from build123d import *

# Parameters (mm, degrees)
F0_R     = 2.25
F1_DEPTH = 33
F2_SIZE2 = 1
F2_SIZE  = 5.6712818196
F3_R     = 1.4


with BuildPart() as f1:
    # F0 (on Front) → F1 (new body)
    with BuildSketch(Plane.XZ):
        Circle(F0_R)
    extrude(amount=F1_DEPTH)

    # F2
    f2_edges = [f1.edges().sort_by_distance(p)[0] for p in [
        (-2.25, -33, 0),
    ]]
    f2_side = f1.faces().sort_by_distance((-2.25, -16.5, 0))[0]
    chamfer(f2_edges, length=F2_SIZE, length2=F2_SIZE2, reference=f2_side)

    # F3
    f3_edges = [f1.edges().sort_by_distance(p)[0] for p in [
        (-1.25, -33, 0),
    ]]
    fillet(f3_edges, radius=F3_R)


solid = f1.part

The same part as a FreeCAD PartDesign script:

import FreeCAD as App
import Part
import Sketcher
from FreeCAD import Vector


def edges_at(feature, points):
    """Names of the edges that pass closest to the given points."""
    edges = feature.Shape.Edges
    near = lambda p: min(range(len(edges)), key=lambda i: edges[i].distToShape(Part.Vertex(*p))[0])
    return sorted({f"Edge{near(p) + 1}" for p in points})

doc = App.newDocument("Part")
params = doc.addObject("Spreadsheet::Sheet", "Params")
for row, (alias, value) in enumerate([
    ("sketch1_diameter", "4.5 mm"),
    ("pad1_length", "33 mm"),
    ("chamfer_size", "5.671282 mm"),
    ("chamfer_size2", "1 mm"),
    ("fillet_radius", "1.4 mm"),
], start=1):
    params.set(f"A{row}", alias)
    params.set(f"B{row}", "=" + value)
    params.setAlias(f"B{row}", alias)

body = doc.addObject("PartDesign::Body", "Body")

sketch1 = body.newObject("Sketcher::SketchObject", "Sketch")
sketch1.AttachmentSupport = (doc.getObject("XZ_Plane"), [""])
sketch1.MapMode = "FlatFace"
sketch1.addGeometry(Part.Circle(Vector(0, 0, 0), Vector(0, 0, 1), 2.2), False)
sketch1.addConstraint([
    Sketcher.Constraint("Coincident", 0, 3, -1, 1),
    Sketcher.Constraint("Diameter", 0, 4.5),
])
sketch1.setExpression("Constraints[1]", "Params.sketch1_diameter")
pad1 = body.newObject("PartDesign::Pad", "Pad")
pad1.Profile = sketch1
pad1.setExpression("Length", "Params.pad1_length")
doc.recompute()

chamfer = body.newObject("PartDesign::Chamfer", "Chamfer")
chamfer.Base = (pad1, edges_at(pad1, [(-2.25, -33, 0)]))
chamfer.ChamferType = "Two distances"
chamfer.setExpression("Size", "Params.chamfer_size")
chamfer.setExpression("Size2", "Params.chamfer_size2")
doc.recompute()

fillet = body.newObject("PartDesign::Fillet", "Fillet")
fillet.Base = (chamfer, edges_at(chamfer, [(-1.25, -33, 0)]))
fillet.setExpression("Radius", "Params.fillet_radius")

doc.recompute()
